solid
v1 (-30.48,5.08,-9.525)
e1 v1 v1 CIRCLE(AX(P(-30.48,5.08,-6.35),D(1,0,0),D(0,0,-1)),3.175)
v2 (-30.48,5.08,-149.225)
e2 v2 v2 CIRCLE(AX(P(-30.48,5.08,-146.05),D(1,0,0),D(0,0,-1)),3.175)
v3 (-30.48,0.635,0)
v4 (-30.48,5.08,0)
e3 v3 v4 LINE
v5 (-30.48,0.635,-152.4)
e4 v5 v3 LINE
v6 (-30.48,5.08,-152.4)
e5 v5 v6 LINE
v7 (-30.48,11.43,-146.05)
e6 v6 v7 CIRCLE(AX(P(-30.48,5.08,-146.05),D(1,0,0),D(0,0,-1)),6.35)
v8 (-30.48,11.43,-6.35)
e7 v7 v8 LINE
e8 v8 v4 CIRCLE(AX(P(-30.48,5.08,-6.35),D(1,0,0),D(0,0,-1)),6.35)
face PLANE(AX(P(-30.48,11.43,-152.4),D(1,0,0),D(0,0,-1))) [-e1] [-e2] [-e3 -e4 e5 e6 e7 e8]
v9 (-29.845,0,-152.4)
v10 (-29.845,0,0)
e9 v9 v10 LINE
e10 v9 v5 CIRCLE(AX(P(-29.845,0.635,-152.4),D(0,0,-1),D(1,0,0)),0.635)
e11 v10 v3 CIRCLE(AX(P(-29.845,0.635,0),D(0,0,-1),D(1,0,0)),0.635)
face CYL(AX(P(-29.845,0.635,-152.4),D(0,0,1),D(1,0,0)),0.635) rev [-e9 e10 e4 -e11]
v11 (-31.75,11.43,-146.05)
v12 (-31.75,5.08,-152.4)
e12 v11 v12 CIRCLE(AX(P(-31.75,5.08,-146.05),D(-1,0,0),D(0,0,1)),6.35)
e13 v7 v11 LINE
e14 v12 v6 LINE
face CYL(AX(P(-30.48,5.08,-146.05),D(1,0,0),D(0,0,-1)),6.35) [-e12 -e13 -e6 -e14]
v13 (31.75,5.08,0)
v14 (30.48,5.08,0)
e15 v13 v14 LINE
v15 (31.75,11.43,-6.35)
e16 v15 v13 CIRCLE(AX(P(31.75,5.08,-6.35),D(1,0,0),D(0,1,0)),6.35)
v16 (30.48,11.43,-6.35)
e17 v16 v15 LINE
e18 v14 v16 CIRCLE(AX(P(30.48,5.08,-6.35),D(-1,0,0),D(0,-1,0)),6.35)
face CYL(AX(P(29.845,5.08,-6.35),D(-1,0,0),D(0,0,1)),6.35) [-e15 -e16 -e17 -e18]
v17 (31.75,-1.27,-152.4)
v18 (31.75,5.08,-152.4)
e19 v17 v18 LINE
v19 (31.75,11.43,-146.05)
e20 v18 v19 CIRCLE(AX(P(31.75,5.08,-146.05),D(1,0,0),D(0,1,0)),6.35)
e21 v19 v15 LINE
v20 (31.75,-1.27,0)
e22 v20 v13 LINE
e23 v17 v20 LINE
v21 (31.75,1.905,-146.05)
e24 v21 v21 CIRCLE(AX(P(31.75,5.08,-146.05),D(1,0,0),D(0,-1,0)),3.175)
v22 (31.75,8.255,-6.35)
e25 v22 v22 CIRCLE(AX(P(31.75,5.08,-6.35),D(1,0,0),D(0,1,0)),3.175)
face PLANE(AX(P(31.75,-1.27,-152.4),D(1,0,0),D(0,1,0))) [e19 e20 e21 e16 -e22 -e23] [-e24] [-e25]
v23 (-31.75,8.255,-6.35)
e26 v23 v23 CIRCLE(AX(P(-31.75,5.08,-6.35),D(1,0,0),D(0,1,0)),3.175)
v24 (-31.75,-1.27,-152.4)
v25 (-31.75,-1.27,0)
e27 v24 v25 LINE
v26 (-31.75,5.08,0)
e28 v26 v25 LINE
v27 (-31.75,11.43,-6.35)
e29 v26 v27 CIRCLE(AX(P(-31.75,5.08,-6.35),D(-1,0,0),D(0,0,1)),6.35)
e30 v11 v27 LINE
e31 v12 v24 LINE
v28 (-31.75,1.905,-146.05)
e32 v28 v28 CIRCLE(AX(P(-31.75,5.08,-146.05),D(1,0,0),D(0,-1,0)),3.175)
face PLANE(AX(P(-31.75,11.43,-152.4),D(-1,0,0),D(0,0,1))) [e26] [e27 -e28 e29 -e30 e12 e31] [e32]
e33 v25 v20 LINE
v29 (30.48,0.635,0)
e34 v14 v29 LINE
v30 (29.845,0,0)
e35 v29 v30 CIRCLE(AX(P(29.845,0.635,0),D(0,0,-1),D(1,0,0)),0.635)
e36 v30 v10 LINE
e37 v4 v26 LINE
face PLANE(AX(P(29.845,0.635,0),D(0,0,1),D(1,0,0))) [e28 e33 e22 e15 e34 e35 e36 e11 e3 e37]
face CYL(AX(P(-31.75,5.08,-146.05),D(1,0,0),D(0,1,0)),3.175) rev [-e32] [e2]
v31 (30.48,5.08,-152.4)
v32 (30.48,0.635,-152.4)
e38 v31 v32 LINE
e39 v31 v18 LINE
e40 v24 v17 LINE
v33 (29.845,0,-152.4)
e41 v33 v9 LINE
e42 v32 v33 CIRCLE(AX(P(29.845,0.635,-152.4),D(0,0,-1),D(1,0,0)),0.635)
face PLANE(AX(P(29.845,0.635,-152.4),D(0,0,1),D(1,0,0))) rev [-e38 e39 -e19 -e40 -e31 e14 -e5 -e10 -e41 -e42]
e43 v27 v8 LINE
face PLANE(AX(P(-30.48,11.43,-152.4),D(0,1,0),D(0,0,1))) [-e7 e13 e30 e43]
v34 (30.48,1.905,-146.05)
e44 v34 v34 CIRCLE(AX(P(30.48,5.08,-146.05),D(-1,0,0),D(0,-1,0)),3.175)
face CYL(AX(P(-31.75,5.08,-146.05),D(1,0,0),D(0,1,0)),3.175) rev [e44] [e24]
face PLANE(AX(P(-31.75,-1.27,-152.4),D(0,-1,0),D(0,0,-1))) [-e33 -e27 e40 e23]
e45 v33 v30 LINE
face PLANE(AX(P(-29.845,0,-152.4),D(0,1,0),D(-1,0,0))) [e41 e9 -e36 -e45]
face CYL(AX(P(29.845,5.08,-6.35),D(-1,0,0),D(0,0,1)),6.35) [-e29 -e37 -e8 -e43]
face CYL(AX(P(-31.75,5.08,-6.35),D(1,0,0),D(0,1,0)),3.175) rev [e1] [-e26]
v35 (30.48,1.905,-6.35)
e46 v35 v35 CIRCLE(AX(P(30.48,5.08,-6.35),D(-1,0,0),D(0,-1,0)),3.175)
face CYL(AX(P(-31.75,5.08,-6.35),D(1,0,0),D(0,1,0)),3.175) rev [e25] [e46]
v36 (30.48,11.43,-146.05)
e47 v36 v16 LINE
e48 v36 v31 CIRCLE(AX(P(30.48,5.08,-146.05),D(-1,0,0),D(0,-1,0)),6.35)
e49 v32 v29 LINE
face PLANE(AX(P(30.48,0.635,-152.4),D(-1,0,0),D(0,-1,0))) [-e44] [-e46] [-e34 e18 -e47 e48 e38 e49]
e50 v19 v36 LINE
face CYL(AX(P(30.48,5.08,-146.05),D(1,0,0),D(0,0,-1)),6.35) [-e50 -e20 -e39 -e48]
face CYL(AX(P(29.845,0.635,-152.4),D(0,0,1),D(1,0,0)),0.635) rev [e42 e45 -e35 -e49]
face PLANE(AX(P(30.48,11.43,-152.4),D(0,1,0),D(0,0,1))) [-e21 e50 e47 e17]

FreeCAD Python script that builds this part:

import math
import FreeCAD as App
import Part
import Sketcher
from FreeCAD import Vector
Q = App.Units.Quantity


def edges_at(feature, points):
    """Names of the edges that pass closest to the given points."""
    edges = feature.Shape.Edges
    near = lambda p: min(range(len(edges)), key=lambda i: edges[i].distToShape(Part.Vertex(*p))[0])
    return sorted({f"Edge{near(p) + 1}" for p in points})

doc = App.newDocument("Part")
body = doc.addObject("PartDesign::Body", "Body")

sketch1 = doc.addObject("Sketcher::SketchObject", "Sketch")
body.addObject(sketch1)
sketch1.AttachmentSupport = (doc.XY_Plane, [""])
sketch1.MapMode = "FlatFace"
sketch1.addGeometry([
    Part.LineSegment(Vector(-30.5, 0.6, 0), Vector(-30.5, 11.4, 0)),
    Part.LineSegment(Vector(-30.5, 11.4, 0), Vector(-31.8, 11.4, 0)),
    Part.LineSegment(Vector(-31.8, 11.4, 0), Vector(-31.8, -1.3, 0)),
    Part.LineSegment(Vector(-31.8, -1.3, 0), Vector(31.8, -1.3, 0)),
    Part.LineSegment(Vector(31.8, -1.3, 0), Vector(31.8, 11.4, 0)),
    Part.LineSegment(Vector(31.8, 11.4, 0), Vector(30.5, 11.4, 0)),
    Part.LineSegment(Vector(30.5, 11.4, 0), Vector(30.5, 0.6, 0)),
    Part.ArcOfCircle(Part.Circle(Vector(29.8, 0.6, 0), Vector(0, 0, 1), 0.6), math.radians(-90), math.radians(0)),
    Part.LineSegment(Vector(29.8, 0, 0), Vector(-29.8, 0, 0)),
    Part.ArcOfCircle(Part.Circle(Vector(-29.8, 0.6, 0), Vector(0, 0, 1), 0.6), math.radians(180), math.radians(270)),
], False)
sketch1.addConstraint([
    Sketcher.Constraint("Coincident", 0, 2, 1, 1),
    Sketcher.Constraint("Coincident", 1, 2, 2, 1),
    Sketcher.Constraint("Coincident", 2, 2, 3, 1),
    Sketcher.Constraint("Coincident", 3, 2, 4, 1),
    Sketcher.Constraint("Coincident", 4, 2, 5, 1),
    Sketcher.Constraint("Coincident", 5, 2, 6, 1),
    Sketcher.Constraint("Tangent", 6, 2, 7, 2),
    Sketcher.Constraint("Tangent", 7, 1, 8, 1),
    Sketcher.Constraint("Tangent", 8, 2, 9, 2),
    Sketcher.Constraint("Tangent", 9, 1, 0, 1),
    Sketcher.Constraint("Vertical", 0),
    Sketcher.Constraint("Horizontal", 1),
    Sketcher.Constraint("Vertical", 2),
    Sketcher.Constraint("Horizontal", 3),
    Sketcher.Constraint("Vertical", 4),
    Sketcher.Constraint("Horizontal", 5),
    Sketcher.Constraint("Vertical", 6),
    Sketcher.Constraint("Horizontal", 8),
    Sketcher.Constraint("Equal", 7, 9),
    Sketcher.Constraint("Symmetric", 7, 1, 8, 2, -1, 1),
    Sketcher.Constraint("Symmetric", 1, 2, 4, 2, -2),
    Sketcher.Constraint("DistanceX", 3, 1, 3, 2, Q("2.5 in")),
    Sketcher.Constraint("DistanceY", 2, 2, 2, 1, Q("0.5 in")),
    Sketcher.Constraint("Radius", 7, Q("0.025 in")),
    Sketcher.Constraint("DistanceX", 1, 2, 1, 1, Q("0.05 in")),
    Sketcher.Constraint("DistanceY", 0, 1, 0, 2, Q("0.425 in")),
])
pad1 = doc.addObject("PartDesign::Pad", "Pad")
body.addObject(pad1)
pad1.Profile = sketch1
pad1.Length = Q("6 in")
pad1.Reversed = True
doc.recompute()

fillet = doc.addObject("PartDesign::Fillet", "Fillet")
body.addObject(fillet)
fillet.Base = (pad1, edges_at(pad1, [
    (31.115, 11.43, 0),
    (-31.115, 11.43, 0),
    (31.115, 11.43, -152.4),
    (-31.115, 11.43, -152.4),
]))
fillet.Radius = Q("0.25 in")

sketch2 = doc.addObject("Sketcher::SketchObject", "Sketch001")
body.addObject(sketch2)
sketch2.AttachmentSupport = (doc.YZ_Plane, [""])
sketch2.MapMode = "FlatFace"
sketch2.AttachmentOffset = App.Placement(Vector(0, 0, 1.25 * 25.4), App.Rotation())
sketch2.addGeometry([
    Part.Circle(Vector(5.1, -6.3, 0), Vector(0, 0, 1), 3.2),
    Part.Circle(Vector(5.1, -146.1, 0), Vector(0, 0, 1), 3.2),
], False)
sketch2.addConstraint([
    Sketcher.Constraint("Equal", 0, 1),
    Sketcher.Constraint("Vertical", 0, 3, 1, 3),
    Sketcher.Constraint("Diameter", 0, Q("0.25 in")),
    Sketcher.Constraint("DistanceX", -1, 1, 0, 3, Q("0.2 in")),
    Sketcher.Constraint("DistanceY", 1, 3, 0, 3, Q("5.5 in")),
    Sketcher.Constraint("DistanceY", 0, 3, -1, 1, Q("0.25 in")),
])
pocket1 = doc.addObject("PartDesign::Pocket", "Pocket")
body.addObject(pocket1)
pocket1.Profile = sketch2
pocket1.Type = "ThroughAll"

doc.recompute()
